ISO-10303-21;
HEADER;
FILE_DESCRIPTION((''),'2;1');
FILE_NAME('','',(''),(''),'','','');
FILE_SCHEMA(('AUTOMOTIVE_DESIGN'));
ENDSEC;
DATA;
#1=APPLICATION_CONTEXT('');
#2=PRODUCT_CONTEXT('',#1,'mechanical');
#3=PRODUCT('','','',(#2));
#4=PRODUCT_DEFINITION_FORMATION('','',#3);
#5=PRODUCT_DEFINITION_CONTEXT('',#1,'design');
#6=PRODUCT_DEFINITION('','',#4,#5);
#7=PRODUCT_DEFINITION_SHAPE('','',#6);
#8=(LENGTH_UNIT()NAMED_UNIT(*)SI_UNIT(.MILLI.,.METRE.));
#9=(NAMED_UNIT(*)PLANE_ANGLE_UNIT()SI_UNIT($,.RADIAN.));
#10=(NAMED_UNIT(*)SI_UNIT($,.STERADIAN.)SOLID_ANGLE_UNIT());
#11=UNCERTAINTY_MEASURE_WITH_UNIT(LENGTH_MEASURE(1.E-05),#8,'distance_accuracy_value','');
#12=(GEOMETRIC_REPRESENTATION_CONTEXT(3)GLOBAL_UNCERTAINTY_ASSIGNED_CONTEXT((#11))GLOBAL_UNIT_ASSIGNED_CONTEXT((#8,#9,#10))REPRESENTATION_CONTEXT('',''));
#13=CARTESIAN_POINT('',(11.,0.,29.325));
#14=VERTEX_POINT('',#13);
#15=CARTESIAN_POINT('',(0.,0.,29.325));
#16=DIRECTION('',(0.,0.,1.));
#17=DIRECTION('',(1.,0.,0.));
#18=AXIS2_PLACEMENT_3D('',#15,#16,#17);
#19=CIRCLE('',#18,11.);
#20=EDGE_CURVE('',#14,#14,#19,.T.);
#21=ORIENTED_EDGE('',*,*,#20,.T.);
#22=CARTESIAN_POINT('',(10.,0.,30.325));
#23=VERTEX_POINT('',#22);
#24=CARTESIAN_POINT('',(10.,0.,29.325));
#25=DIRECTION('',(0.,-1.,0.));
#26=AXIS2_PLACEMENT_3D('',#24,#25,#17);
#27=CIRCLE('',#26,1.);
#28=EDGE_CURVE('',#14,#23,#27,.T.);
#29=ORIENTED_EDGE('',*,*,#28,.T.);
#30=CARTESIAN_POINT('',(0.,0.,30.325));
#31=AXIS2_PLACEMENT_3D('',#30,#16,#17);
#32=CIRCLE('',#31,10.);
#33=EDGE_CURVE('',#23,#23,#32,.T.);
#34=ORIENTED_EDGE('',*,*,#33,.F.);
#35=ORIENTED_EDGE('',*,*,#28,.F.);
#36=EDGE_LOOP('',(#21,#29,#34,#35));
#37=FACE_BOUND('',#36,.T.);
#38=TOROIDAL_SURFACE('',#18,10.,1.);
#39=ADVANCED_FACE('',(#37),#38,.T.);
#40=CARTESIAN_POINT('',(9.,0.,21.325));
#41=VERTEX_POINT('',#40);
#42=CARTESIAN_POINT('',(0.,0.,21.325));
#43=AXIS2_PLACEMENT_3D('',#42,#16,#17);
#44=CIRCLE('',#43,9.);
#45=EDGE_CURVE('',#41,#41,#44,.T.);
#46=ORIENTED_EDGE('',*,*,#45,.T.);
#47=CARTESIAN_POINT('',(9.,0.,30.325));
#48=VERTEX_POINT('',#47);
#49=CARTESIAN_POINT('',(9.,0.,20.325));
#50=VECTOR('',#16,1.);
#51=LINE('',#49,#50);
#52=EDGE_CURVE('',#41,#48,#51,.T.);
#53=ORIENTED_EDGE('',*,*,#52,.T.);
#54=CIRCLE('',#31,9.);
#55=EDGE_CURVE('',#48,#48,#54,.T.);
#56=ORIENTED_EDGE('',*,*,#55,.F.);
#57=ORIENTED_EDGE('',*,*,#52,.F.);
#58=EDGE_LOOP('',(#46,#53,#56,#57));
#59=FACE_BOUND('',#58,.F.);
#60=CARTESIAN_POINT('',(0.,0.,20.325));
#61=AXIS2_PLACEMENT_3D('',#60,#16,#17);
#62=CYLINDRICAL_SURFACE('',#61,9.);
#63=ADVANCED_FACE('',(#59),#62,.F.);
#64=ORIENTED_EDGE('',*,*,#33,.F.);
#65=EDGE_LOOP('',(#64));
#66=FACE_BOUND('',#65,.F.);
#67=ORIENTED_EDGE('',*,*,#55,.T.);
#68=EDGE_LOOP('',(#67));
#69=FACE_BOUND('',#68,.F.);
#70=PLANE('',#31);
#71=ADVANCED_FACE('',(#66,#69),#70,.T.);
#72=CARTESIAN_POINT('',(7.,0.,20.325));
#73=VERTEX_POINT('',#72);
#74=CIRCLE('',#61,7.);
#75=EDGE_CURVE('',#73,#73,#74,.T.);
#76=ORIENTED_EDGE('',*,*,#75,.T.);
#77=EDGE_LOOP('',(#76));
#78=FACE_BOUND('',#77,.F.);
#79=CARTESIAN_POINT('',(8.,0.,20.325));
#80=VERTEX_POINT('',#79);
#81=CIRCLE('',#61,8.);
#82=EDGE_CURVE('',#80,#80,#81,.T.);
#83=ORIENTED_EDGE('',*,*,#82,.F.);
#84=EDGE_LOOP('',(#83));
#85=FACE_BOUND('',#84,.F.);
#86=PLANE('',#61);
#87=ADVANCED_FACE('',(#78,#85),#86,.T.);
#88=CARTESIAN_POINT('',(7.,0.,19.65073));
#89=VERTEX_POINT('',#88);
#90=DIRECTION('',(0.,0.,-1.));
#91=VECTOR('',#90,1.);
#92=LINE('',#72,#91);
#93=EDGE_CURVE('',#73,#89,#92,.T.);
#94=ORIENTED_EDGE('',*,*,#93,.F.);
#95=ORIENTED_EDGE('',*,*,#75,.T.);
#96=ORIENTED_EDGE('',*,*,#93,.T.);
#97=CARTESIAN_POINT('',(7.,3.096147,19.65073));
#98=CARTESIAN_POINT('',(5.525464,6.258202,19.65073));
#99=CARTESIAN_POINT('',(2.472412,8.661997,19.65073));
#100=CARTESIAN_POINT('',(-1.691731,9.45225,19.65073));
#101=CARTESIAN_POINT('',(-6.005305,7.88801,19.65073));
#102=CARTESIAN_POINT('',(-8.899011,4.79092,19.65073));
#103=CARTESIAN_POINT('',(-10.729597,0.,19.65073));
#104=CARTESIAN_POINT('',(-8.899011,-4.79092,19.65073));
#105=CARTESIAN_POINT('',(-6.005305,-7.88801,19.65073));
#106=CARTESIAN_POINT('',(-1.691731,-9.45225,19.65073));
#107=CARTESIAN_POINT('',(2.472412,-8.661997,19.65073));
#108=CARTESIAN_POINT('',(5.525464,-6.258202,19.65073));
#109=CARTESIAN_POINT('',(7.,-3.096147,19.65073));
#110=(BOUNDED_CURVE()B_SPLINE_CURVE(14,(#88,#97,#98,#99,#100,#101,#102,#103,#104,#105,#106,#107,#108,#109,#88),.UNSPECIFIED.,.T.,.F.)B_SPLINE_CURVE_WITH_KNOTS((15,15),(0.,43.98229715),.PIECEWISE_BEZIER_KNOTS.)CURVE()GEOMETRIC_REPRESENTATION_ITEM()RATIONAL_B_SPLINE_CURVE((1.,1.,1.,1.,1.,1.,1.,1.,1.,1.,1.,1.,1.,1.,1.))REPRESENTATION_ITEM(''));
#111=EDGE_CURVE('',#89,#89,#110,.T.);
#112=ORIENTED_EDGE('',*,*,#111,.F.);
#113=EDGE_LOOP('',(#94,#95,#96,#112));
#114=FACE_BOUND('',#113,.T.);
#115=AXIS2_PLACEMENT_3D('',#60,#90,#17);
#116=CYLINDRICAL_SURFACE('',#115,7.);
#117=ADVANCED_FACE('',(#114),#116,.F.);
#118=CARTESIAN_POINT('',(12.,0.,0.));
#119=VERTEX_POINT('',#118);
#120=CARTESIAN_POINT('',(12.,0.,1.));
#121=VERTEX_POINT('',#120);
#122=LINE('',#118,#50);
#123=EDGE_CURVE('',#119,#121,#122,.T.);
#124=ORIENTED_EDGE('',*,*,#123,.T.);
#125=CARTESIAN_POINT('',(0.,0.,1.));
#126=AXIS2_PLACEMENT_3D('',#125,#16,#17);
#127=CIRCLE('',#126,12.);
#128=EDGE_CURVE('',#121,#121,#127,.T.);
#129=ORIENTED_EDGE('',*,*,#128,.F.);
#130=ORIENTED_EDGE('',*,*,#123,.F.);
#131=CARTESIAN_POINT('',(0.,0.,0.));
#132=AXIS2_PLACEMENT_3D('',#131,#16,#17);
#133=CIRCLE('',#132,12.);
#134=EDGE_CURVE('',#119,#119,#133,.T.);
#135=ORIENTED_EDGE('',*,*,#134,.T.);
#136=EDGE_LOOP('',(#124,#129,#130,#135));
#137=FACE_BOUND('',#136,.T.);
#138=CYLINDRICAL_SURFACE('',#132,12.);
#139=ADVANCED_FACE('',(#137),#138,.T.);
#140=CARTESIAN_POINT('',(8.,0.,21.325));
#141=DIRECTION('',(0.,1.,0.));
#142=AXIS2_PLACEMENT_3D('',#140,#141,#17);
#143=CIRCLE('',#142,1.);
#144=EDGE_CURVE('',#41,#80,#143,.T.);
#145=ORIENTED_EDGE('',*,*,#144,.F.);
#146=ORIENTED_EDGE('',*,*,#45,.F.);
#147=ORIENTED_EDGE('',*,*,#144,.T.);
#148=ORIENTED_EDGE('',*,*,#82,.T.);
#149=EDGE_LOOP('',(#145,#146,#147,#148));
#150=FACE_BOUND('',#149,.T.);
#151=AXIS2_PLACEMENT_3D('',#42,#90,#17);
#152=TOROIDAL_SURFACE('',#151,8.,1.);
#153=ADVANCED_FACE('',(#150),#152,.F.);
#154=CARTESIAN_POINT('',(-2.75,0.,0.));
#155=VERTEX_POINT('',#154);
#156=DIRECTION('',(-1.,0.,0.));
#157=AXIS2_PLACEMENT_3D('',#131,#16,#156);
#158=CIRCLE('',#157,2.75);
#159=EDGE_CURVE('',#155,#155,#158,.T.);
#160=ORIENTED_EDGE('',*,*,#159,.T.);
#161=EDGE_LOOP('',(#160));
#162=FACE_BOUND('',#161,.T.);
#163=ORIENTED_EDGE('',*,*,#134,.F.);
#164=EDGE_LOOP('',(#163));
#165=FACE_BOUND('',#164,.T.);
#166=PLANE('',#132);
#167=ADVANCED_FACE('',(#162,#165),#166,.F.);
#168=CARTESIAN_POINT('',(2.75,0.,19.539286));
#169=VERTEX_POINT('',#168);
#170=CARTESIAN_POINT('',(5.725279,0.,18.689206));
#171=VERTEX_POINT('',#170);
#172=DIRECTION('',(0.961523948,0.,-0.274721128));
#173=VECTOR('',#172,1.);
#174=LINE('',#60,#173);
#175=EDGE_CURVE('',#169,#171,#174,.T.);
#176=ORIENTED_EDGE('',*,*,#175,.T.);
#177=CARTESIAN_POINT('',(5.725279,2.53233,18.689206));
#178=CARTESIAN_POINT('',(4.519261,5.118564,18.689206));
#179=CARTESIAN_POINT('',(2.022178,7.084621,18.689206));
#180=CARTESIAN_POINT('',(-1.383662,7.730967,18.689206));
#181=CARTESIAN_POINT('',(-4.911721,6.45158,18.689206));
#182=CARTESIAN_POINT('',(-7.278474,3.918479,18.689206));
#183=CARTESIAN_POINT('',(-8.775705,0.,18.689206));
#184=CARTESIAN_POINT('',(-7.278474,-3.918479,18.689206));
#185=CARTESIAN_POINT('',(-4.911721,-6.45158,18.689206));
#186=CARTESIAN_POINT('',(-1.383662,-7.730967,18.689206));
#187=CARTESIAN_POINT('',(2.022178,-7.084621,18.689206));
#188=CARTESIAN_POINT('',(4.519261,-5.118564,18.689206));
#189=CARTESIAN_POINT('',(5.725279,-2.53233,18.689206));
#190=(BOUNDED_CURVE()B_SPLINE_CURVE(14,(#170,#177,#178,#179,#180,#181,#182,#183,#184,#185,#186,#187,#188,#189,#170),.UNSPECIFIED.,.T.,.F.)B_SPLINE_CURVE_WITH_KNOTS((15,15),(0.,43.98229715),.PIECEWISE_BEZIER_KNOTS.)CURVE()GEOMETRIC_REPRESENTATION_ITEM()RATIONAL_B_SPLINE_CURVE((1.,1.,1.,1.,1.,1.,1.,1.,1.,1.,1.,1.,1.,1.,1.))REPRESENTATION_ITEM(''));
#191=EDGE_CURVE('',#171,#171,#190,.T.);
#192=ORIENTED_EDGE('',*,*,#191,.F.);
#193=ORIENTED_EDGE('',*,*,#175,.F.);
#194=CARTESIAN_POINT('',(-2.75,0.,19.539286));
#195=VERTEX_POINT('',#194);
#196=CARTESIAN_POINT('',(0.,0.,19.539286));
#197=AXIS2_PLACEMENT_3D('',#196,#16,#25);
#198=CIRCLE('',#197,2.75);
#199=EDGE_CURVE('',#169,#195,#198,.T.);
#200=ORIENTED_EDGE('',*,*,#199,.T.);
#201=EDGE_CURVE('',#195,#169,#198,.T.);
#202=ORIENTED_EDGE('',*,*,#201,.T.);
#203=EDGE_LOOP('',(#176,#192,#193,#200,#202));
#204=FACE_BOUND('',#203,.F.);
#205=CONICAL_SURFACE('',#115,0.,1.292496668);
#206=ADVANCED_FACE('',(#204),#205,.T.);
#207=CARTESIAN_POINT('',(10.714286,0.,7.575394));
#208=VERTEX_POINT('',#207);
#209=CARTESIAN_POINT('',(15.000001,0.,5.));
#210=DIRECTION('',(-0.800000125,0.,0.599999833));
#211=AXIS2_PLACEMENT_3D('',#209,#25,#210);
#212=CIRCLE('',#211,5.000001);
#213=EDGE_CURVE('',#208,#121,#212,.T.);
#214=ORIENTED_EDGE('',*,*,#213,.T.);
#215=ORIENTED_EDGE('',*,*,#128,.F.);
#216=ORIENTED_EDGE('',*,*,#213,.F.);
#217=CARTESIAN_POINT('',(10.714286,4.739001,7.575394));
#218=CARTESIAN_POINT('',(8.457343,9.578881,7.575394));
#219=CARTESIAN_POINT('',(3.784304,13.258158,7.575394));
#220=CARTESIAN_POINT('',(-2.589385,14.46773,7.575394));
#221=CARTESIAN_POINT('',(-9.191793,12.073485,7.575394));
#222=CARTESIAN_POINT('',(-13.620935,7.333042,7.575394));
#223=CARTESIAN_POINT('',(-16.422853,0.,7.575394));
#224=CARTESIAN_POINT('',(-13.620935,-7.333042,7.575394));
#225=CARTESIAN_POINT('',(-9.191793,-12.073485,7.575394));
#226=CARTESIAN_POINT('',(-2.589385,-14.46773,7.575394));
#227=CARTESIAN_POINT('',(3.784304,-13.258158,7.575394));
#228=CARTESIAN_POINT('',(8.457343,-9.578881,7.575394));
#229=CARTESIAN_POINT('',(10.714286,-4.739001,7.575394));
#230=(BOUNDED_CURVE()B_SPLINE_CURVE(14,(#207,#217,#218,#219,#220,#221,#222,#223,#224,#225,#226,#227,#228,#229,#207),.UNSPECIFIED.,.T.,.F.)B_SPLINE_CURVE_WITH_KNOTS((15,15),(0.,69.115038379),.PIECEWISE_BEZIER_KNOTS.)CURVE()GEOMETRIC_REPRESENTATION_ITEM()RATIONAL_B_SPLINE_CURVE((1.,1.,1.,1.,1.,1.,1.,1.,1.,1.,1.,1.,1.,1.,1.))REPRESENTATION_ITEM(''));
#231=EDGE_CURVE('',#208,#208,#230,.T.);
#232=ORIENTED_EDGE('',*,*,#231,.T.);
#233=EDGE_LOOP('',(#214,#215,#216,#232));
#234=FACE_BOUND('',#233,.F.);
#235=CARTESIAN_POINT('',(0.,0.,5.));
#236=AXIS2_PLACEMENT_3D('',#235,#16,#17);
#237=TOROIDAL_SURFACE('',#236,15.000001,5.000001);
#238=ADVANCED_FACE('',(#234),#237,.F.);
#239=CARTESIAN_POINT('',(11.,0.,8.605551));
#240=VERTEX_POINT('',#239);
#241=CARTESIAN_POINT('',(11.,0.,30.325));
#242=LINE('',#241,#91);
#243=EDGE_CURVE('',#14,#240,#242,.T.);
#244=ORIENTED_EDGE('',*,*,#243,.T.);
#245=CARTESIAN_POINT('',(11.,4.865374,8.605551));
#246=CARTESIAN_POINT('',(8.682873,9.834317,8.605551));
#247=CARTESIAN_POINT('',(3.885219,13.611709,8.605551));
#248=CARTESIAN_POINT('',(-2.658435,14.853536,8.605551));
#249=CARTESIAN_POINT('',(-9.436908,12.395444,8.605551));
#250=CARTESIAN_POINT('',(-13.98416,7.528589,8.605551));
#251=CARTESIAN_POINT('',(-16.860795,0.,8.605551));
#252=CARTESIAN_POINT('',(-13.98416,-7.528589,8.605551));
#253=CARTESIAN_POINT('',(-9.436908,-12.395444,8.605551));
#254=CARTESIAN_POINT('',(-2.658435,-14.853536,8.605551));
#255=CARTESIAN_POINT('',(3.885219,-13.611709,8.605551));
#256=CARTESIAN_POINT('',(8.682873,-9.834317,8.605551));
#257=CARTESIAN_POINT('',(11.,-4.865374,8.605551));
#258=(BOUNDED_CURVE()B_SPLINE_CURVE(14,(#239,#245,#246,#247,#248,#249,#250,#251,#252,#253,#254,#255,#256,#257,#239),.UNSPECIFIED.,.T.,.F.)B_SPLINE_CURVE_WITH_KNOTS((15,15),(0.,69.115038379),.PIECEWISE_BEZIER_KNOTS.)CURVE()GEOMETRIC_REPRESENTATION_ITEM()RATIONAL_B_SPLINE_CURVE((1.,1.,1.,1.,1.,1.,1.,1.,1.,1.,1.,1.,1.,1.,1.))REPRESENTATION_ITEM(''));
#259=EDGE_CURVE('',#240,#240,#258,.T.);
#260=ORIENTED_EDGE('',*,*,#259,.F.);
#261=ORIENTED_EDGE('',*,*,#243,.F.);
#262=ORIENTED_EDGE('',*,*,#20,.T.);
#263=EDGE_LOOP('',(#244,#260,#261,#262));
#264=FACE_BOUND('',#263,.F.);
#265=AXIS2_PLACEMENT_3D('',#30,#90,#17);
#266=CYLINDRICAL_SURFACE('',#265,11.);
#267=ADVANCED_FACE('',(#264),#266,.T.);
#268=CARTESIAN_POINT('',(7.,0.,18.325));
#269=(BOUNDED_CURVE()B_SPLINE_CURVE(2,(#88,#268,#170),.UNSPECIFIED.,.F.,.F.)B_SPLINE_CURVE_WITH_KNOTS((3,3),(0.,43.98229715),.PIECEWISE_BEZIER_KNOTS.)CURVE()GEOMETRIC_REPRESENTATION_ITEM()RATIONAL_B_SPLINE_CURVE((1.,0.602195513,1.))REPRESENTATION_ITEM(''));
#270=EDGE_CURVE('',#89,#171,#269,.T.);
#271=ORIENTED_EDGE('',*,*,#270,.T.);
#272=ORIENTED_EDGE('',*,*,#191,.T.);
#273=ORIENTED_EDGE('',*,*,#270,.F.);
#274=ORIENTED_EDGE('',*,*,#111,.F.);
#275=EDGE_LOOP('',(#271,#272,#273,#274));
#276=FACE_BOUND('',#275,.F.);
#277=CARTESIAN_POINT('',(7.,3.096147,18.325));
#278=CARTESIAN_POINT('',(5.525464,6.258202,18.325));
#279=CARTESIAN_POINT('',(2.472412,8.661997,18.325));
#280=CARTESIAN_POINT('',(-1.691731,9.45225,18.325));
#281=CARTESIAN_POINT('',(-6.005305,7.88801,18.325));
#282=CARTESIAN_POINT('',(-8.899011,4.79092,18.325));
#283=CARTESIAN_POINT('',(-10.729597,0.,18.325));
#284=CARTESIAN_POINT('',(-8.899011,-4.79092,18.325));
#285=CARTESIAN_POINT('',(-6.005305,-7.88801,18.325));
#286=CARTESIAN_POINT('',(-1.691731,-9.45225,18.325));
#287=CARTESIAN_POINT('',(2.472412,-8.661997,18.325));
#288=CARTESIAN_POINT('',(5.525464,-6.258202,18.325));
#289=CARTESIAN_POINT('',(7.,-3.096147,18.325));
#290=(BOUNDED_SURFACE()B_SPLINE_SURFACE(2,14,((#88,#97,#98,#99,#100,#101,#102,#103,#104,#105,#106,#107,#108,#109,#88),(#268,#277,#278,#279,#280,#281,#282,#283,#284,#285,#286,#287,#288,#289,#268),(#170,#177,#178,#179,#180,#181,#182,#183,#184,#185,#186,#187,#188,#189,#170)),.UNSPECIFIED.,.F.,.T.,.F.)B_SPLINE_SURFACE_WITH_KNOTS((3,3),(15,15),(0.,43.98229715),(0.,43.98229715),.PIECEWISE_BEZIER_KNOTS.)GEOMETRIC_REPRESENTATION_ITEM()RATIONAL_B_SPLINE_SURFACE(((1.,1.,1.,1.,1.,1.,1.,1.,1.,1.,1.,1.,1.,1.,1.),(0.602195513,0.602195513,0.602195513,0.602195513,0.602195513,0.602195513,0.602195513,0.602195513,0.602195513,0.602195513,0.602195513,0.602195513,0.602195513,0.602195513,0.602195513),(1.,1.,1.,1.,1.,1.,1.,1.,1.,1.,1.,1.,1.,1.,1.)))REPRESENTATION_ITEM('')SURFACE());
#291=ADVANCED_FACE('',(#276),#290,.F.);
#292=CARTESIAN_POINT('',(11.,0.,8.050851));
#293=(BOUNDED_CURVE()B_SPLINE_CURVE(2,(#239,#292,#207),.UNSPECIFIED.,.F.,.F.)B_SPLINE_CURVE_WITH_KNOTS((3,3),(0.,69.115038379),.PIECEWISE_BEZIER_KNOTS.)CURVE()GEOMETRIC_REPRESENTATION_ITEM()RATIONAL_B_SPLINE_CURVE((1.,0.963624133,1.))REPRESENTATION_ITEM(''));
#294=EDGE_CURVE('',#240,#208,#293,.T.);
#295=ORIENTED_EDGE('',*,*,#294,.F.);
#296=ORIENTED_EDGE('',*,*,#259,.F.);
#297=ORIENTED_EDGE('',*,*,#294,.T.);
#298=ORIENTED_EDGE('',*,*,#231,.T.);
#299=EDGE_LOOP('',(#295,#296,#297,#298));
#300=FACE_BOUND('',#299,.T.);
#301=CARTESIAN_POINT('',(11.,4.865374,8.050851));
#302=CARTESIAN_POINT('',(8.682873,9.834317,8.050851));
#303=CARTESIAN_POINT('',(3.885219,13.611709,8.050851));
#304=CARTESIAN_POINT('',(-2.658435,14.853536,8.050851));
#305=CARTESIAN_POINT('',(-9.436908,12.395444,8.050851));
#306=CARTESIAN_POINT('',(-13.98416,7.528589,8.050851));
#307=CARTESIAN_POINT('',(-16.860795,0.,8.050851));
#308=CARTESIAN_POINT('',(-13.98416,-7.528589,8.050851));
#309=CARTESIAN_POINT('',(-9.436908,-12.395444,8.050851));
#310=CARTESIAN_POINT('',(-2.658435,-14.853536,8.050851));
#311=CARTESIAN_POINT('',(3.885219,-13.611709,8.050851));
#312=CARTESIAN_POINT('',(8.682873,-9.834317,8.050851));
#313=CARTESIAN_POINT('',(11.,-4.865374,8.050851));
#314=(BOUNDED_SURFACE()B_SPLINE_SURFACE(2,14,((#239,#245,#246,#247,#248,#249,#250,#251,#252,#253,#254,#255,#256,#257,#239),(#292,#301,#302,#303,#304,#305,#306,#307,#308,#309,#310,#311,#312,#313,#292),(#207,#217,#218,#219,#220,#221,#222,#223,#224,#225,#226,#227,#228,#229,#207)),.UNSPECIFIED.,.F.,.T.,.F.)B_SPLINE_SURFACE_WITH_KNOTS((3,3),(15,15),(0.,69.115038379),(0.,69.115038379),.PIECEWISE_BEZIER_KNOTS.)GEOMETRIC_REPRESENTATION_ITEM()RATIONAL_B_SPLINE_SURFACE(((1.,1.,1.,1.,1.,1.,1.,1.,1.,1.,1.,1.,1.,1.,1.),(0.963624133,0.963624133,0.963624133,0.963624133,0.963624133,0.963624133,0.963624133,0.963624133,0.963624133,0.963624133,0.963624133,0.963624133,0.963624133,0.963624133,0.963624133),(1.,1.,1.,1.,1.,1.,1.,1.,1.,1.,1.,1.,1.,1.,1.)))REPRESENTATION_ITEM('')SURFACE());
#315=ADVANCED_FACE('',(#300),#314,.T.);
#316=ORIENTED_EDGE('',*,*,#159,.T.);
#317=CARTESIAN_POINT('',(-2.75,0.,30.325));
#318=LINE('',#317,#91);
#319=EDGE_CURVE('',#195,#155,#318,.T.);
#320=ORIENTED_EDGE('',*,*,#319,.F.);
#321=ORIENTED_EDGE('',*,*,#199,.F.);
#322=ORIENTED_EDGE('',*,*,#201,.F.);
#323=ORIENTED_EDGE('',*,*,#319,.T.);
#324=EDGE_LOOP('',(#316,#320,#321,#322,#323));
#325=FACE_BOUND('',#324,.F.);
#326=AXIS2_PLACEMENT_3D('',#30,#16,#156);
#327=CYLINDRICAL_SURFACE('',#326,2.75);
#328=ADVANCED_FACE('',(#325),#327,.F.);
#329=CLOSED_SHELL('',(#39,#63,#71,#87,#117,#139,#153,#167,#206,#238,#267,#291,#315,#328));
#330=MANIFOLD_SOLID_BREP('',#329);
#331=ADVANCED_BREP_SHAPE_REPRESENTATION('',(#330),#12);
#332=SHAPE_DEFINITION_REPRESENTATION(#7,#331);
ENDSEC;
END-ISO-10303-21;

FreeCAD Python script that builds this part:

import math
import FreeCAD as App
import Part
import Sketcher
Q = App.Units.Quantity


def edges_at(feature, points):
    """Names of the edges that pass closest to the given points."""
    edges = feature.Shape.Edges
    near = lambda p: min(range(len(edges)), key=lambda i: edges[i].distToShape(Part.Vertex(*p))[0])
    return sorted({f"Edge{near(p) + 1}" for p in points})

doc = App.newDocument("Part")
body = doc.addObject("PartDesign::Body", "Body")

sketch1 = body.newObject("Sketcher::SketchObject", "Sketch")
sketch1.AttachmentSupport = (doc.getObject("XZ_Plane"), [""])
sketch1.MapMode = "FlatFace"
sketch1.addGeometry(Part.LineSegment(App.Vector(0, 0, 0), App.Vector(12, 0, 0)), False)
sketch1.addGeometry(Part.LineSegment(App.Vector(12, 0, 0), App.Vector(12, 1, 0)), False)
sketch1.addGeometry(Part.ArcOfCircle(Part.Circle(App.Vector(15, 5, 0), App.Vector(0, 0, 1), 5), math.radians(143), math.radians(233)), False)
sketch1.addGeometry(Part.LineSegment(App.Vector(11, 8, 0), App.Vector(11, 30.3, 0)), False)
sketch1.addGeometry(Part.LineSegment(App.Vector(11, 30.3, 0), App.Vector(9, 30.3, 0)), False)
sketch1.addGeometry(Part.LineSegment(App.Vector(9, 30.3, 0), App.Vector(9, 20.3, 0)), False)
sketch1.addGeometry(Part.LineSegment(App.Vector(9, 20.3, 0), App.Vector(7, 20.3, 0)), False)
sketch1.addGeometry(Part.LineSegment(App.Vector(7, 20.3, 0), App.Vector(7, 18.3, 0)), False)
sketch1.addGeometry(Part.LineSegment(App.Vector(7, 18.3, 0), App.Vector(0, 20.3, 0)), False)
sketch1.addGeometry(Part.LineSegment(App.Vector(0, 20.3, 0), App.Vector(0, 0, 0)), False)
sketch1.addConstraint(Sketcher.Constraint("Coincident", 0, 2, 1, 1))
sketch1.addConstraint(Sketcher.Constraint("Coincident", 1, 2, 2, 2))
sketch1.addConstraint(Sketcher.Constraint("Coincident", 2, 1, 3, 1))
sketch1.addConstraint(Sketcher.Constraint("Coincident", 3, 2, 4, 1))
sketch1.addConstraint(Sketcher.Constraint("Coincident", 4, 2, 5, 1))
sketch1.addConstraint(Sketcher.Constraint("Coincident", 5, 2, 6, 1))
sketch1.addConstraint(Sketcher.Constraint("Coincident", 6, 2, 7, 1))
sketch1.addConstraint(Sketcher.Constraint("Coincident", 7, 2, 8, 1))
sketch1.addConstraint(Sketcher.Constraint("Coincident", 8, 2, 9, 1))
sketch1.addConstraint(Sketcher.Constraint("Coincident", 9, 2, 0, 1))
sketch1.addConstraint(Sketcher.Constraint("Horizontal", 0))
sketch1.addConstraint(Sketcher.Constraint("Vertical", 1))
sketch1.addConstraint(Sketcher.Constraint("Vertical", 3))
sketch1.addConstraint(Sketcher.Constraint("Horizontal", 4))
sketch1.addConstraint(Sketcher.Constraint("Vertical", 5))
sketch1.addConstraint(Sketcher.Constraint("Horizontal", 6))
sketch1.addConstraint(Sketcher.Constraint("Vertical", 7))
sketch1.addConstraint(Sketcher.Constraint("Vertical", 9))
sketch1.addConstraint(Sketcher.Constraint("Coincident", 9, 2, -1, 1))
sketch1.addConstraint(Sketcher.Constraint("Horizontal", 6, 2, 8, 2))
sketch1.addConstraint(Sketcher.Constraint("Equal", 4, 6))
sketch1.addConstraint(Sketcher.Constraint("Equal", 6, 7))
sketch1.addConstraint(Sketcher.Constraint("Radius", 2, Q("5.000001 mm")))
sketch1.addConstraint(Sketcher.Constraint("DistanceX", 0, 1, 0, 2, Q("12 mm")))
sketch1.addConstraint(Sketcher.Constraint("DistanceX", 4, 2, 4, 1, Q("2 mm")))
sketch1.addConstraint(Sketcher.Constraint("DistanceY", 1, 1, 1, 2, Q("1 mm")))
sketch1.addConstraint(Sketcher.Constraint("DistanceY", 5, 2, 5, 1, Q("10 mm")))
sketch1.addConstraint(Sketcher.Constraint("DistanceX", -1, 1, 2, 3, Q("15.000001 mm")))
sketch1.addConstraint(Sketcher.Constraint("DistanceX", -1, 1, 2, 1, Q("11 mm")))
sketch1.addConstraint(Sketcher.Constraint("DistanceY", 3, 1, 3, 2, Q("22.325 mm")))
revolution = body.newObject("PartDesign::Revolution", "Revolution")
revolution.Profile = sketch1
revolution.ReferenceAxis = (sketch1, ["V_Axis"])
revolution.Angle = 360
doc.recompute()

fillet = body.newObject("PartDesign::Fillet", "Fillet")
fillet.Base = (revolution, edges_at(revolution, [(-11, 0, 30.325), (-7, 0, 18.325), (-9, 0, 20.325)]))
fillet.Radius = 1

sketch2 = body.newObject("Sketcher::SketchObject", "Sketch001")
sketch2.AttachmentSupport = (doc.getObject("XY_Plane"), [""])
sketch2.MapMode = "FlatFace"
sketch2.AttachmentOffset = App.Placement(App.Vector(0, 0, 30.325), App.Rotation())
sketch2.addGeometry(Part.Circle(App.Vector(0, 0, 0), App.Vector(0, 0, 1), 2.8), False)
sketch2.addConstraint(Sketcher.Constraint("Coincident", 0, 3, -1, 1))
sketch2.addConstraint(Sketcher.Constraint("Diameter", 0, Q("5.5 mm")))
pocket1 = body.newObject("PartDesign::Pocket", "Pocket")
pocket1.Profile = sketch2
pocket1.Type = "ThroughAll"
doc.recompute()

fillet2 = body.newObject("PartDesign::Fillet", "Fillet001")
fillet2.Base = (pocket1, edges_at(pocket1, [(-11, 0, 8)]))
fillet2.Radius = 2

doc.recompute()
